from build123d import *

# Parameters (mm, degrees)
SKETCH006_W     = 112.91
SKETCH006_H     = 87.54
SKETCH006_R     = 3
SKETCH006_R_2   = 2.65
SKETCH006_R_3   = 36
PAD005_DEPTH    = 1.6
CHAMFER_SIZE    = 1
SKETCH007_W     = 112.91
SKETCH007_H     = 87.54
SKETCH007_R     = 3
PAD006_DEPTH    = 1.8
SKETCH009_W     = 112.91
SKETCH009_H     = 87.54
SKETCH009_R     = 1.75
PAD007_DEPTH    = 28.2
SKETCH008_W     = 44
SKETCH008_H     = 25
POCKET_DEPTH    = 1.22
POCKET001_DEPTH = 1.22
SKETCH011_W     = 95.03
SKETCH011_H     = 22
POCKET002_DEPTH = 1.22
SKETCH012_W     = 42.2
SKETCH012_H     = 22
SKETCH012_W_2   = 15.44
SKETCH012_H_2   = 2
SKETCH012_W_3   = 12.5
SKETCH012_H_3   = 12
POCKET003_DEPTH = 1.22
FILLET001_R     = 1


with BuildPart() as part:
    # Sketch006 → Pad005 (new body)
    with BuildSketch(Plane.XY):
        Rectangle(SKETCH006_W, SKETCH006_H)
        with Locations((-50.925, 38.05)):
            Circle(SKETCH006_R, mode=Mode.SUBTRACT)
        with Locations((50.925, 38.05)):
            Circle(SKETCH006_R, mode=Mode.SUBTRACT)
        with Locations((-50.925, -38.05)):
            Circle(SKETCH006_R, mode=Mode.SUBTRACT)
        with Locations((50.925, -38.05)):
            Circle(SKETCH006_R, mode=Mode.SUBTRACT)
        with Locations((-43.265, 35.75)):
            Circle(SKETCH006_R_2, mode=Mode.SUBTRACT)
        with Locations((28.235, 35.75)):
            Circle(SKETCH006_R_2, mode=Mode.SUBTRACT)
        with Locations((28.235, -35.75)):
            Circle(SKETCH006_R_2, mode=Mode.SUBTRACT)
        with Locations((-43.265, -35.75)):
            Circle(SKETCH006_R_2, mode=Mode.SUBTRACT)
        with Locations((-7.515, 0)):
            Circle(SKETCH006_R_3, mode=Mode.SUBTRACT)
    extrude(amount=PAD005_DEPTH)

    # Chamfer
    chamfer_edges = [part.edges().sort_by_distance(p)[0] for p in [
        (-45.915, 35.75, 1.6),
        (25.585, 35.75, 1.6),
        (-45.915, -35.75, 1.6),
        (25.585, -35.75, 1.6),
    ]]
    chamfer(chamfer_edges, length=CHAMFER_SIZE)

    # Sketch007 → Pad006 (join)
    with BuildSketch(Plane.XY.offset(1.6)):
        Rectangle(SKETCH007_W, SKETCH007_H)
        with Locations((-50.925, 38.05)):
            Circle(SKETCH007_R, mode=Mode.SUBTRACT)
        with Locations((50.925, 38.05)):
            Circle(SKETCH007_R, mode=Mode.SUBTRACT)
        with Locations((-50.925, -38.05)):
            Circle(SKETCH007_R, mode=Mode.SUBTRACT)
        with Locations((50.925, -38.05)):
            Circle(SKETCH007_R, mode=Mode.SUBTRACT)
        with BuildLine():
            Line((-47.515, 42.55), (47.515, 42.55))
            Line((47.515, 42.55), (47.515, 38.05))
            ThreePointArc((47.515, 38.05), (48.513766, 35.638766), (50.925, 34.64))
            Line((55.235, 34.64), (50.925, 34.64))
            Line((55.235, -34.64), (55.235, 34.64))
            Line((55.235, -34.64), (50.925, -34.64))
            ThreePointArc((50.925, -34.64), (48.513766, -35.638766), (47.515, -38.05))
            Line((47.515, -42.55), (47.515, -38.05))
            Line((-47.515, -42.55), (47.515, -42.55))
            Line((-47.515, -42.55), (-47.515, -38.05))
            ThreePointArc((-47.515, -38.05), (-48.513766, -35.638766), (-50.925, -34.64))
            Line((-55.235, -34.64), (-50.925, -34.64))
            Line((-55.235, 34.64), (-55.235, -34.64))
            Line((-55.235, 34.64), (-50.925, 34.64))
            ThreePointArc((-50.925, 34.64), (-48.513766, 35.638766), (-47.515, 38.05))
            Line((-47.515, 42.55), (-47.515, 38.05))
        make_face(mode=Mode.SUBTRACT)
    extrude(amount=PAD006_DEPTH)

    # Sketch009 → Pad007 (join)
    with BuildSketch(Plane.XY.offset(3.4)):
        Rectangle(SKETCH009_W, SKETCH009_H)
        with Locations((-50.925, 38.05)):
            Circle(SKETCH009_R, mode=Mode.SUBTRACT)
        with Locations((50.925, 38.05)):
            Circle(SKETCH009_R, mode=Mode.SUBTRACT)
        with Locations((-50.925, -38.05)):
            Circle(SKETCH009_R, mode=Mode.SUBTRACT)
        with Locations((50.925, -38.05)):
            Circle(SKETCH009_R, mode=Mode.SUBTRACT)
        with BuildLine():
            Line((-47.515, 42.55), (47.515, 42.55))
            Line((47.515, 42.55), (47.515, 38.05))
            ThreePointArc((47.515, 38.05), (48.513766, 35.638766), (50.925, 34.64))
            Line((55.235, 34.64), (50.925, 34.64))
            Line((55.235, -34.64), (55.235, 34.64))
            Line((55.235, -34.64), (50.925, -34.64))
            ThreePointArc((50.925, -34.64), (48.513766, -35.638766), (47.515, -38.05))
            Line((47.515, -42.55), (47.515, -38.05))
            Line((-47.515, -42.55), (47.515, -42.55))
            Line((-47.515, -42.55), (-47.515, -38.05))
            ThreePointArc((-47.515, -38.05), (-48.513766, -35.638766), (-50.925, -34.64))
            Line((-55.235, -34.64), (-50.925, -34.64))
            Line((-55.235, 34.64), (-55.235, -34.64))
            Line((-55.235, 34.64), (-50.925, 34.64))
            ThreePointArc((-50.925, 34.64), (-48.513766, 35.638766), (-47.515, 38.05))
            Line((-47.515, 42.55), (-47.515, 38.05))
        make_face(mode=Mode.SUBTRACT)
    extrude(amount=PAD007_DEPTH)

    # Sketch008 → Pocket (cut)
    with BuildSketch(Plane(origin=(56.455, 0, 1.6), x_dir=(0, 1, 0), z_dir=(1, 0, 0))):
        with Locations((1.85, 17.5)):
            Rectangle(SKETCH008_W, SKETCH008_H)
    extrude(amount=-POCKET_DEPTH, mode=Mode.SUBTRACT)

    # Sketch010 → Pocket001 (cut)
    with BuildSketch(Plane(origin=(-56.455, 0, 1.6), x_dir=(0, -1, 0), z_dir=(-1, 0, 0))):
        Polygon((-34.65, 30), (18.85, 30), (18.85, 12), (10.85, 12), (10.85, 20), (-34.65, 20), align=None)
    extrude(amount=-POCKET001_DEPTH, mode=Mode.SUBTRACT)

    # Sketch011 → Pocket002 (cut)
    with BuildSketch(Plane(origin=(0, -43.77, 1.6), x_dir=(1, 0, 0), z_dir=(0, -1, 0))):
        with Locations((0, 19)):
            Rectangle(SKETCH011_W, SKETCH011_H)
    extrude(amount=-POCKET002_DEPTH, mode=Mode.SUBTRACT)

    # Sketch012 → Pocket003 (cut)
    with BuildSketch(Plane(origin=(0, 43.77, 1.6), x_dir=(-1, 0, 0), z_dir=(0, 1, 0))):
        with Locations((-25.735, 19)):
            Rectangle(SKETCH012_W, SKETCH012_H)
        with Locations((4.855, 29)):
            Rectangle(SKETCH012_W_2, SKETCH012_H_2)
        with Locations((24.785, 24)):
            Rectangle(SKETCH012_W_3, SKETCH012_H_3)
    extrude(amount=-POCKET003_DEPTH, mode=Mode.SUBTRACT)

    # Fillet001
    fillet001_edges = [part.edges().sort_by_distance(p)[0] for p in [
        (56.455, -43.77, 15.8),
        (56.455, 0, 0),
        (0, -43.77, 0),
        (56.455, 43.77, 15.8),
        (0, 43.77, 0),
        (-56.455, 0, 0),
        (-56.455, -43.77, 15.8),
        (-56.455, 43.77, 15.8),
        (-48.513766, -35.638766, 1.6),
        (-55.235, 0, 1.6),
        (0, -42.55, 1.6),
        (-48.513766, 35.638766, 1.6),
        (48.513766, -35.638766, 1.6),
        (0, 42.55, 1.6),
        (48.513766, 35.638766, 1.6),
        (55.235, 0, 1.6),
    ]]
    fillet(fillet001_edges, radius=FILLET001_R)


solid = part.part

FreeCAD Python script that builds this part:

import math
import FreeCAD as App
import Part
import Sketcher


def edges_at(feature, points):
    """Names of the edges that pass closest to the given points."""
    edges = feature.Shape.Edges
    near = lambda p: min(range(len(edges)), key=lambda i: edges[i].distToShape(Part.Vertex(*p))[0])
    return sorted({f"Edge{near(p) + 1}" for p in points})


def add_polygon(sketch, points):
    """Adds a closed chain of lines whose ends are joined by coincident constraints."""
    first, n = sketch.GeometryCount, len(points)
    for a, b in zip(points, points[1:] + points[:1]):
        sketch.addGeometry(Part.LineSegment(App.Vector(*a, 0), App.Vector(*b, 0)), False)
    for i in range(n):
        sketch.addConstraint(Sketcher.Constraint("Coincident", first + i, 2, first + (i + 1) % n, 1))

doc = App.newDocument("Part")
body = doc.addObject("PartDesign::Body", "Body")

# Sketch on XY plane
sketch1 = body.newObject("Sketcher::SketchObject", "Sketch")
sketch1.AttachmentSupport = (doc.getObject("XY_Plane"), [""])
sketch1.MapMode = "FlatFace"
add_polygon(sketch1, [(-56.5, 43.8), (-56.5, -43.8), (56.5, -43.8), (56.5, 43.8)])  # lines 0-3
sketch1.addGeometry(Part.Circle(App.Vector(-50.9, -38, 0), App.Vector(0, 0, 1), 3), False)  # 4
sketch1.addGeometry(Part.Circle(App.Vector(-43.3, -35.8, 0), App.Vector(0, 0, 1), 2.6), False)  # 5
sketch1.addGeometry(Part.Circle(App.Vector(28.2, -35.8, 0), App.Vector(0, 0, 1), 2.6), False)  # 6
sketch1.addGeometry(Part.Circle(App.Vector(50.9, -38, 0), App.Vector(0, 0, 1), 3), False)  # 7
sketch1.addGeometry(Part.Circle(App.Vector(-7.5, 0, 0), App.Vector(0, 0, 1), 36), False)  # 8
sketch1.addGeometry(Part.Circle(App.Vector(-43.3, 35.8, 0), App.Vector(0, 0, 1), 2.6), False)  # 9
sketch1.addGeometry(Part.Circle(App.Vector(-50.9, 38, 0), App.Vector(0, 0, 1), 3), False)  # 10
sketch1.addGeometry(Part.Circle(App.Vector(28.2, 35.8, 0), App.Vector(0, 0, 1), 2.6), False)  # 11
sketch1.addGeometry(Part.Circle(App.Vector(50.9, 38, 0), App.Vector(0, 0, 1), 3), False)  # 12
sketch1.addConstraint(Sketcher.Constraint("Vertical", 0))
sketch1.addConstraint(Sketcher.Constraint("Horizontal", 1))
sketch1.addConstraint(Sketcher.Constraint("Vertical", 2))
sketch1.addConstraint(Sketcher.Constraint("Horizontal", 3))
sketch1.addConstraint(Sketcher.Constraint("Equal", 5, 6))
sketch1.addConstraint(Sketcher.Constraint("Equal", 4, 7))
sketch1.addConstraint(Sketcher.Constraint("Equal", 6, 9))
sketch1.addConstraint(Sketcher.Constraint("Equal", 7, 10))
sketch1.addConstraint(Sketcher.Constraint("Equal", 9, 11))
sketch1.addConstraint(Sketcher.Constraint("Equal", 10, 12))
sketch1.addConstraint(Sketcher.Constraint("Symmetric", 7, 3, 10, 3, -1, 1))
sketch1.addConstraint(Sketcher.Constraint("Symmetric", 4, 3, 12, 3, -1, 1))
sketch1.addConstraint(Sketcher.Constraint("Symmetric", 0, 2, 2, 2, -1, 1))
sketch1.addConstraint(Sketcher.Constraint("Symmetric", 4, 3, 7, 3, -2))
sketch1.addConstraint(Sketcher.Constraint("Symmetric", 5, 3, 9, 3, -1))
sketch1.addConstraint(Sketcher.Constraint("Symmetric", 6, 3, 11, 3, -1))
sketch1.addConstraint(Sketcher.Constraint("PointOnObject", 8, 3, -1))
sketch1.addConstraint(Sketcher.Constraint("Horizontal", 5, 3, 6, 3))
sketch1.addConstraint(Sketcher.Constraint("Diameter", 4, 6.0))
sketch1.addConstraint(Sketcher.Constraint("Diameter", 8, 72.0))
sketch1.addConstraint(Sketcher.Constraint("Diameter", 5, 5.3))
sketch1.addConstraint(Sketcher.Constraint("DistanceX", 1, 1, 1, 2, 112.91))
sketch1.addConstraint(Sketcher.Constraint("DistanceY", 0, 2, 0, 1, 87.54))
sketch1.addConstraint(Sketcher.Constraint("DistanceY", 4, 3, 5, 3, 2.3))
sketch1.addConstraint(Sketcher.Constraint("DistanceX", 5, 3, 6, 3, 71.5))
sketch1.addConstraint(Sketcher.Constraint("DistanceY", 5, 3, 9, 3, 71.5))
sketch1.addConstraint(Sketcher.Constraint("DistanceX", 4, 3, 5, 3, 7.66))
sketch1.addConstraint(Sketcher.Constraint("DistanceX", 6, 3, 7, 3, 22.69))
sketch1.addConstraint(Sketcher.Constraint("DistanceX", 5, 3, 8, 3, 35.75))
pad1 = body.newObject("PartDesign::Pad", "Pad")
pad1.Profile = sketch1
pad1.Length = 1.6
doc.recompute()

chamfer = body.newObject("PartDesign::Chamfer", "Chamfer")
chamfer.Base = (pad1, edges_at(pad1, [
    (-45.915, 35.75, 1.6),
    (25.585, 35.75, 1.6),
    (-45.915, -35.75, 1.6),
    (25.585, -35.75, 1.6),
]))
chamfer.Size = 1

# Sketch on XY plane
sketch2 = body.newObject("Sketcher::SketchObject", "Sketch001")
sketch2.AttachmentSupport = (doc.getObject("XY_Plane"), [""])
sketch2.MapMode = "FlatFace"
sketch2.AttachmentOffset = App.Placement(App.Vector(0, 0, 1.6), App.Rotation())
add_polygon(sketch2, [(-56.5, 43.8), (-56.5, -43.8), (56.5, -43.8), (56.5, 43.8)])  # lines 0-3
sketch2.addGeometry(Part.Circle(App.Vector(-50.9, -38, 0), App.Vector(0, 0, 1), 3), False)  # 4
sketch2.addGeometry(Part.Circle(App.Vector(50.9, -38, 0), App.Vector(0, 0, 1), 3), False)  # 5
sketch2.addGeometry(Part.LineSegment(App.Vector(-47.5, 38, 0), App.Vector(-47.5, 42.5, 0)), False)  # 6
sketch2.addGeometry(Part.LineSegment(App.Vector(-47.5, 42.5, 0), App.Vector(47.5, 42.5, 0)), False)  # 7
sketch2.addGeometry(Part.LineSegment(App.Vector(47.5, 42.5, 0), App.Vector(47.5, 38, 0)), False)  # 8
sketch2.addGeometry(Part.ArcOfCircle(Part.Circle(App.Vector(50.9, 38.1, 0), App.Vector(0, 0, 1), 3.4), math.radians(-180), math.radians(-90)), False)  # 9
sketch2.addGeometry(Part.LineSegment(App.Vector(50.9, 34.6, 0), App.Vector(55.2, 34.6, 0)), False)  # 10
sketch2.addGeometry(Part.LineSegment(App.Vector(55.2, 34.6, 0), App.Vector(55.2, -34.6, 0)), False)  # 11
sketch2.addGeometry(Part.LineSegment(App.Vector(55.2, -34.6, 0), App.Vector(50.9, -34.6, 0)), False)  # 12
sketch2.addGeometry(Part.ArcOfCircle(Part.Circle(App.Vector(50.9, -38.1, 0), App.Vector(0, 0, 1), 3.4), math.radians(90), math.radians(180)), False)  # 13
sketch2.addGeometry(Part.LineSegment(App.Vector(47.5, -38, 0), App.Vector(47.5, -42.5, 0)), False)  # 14
sketch2.addGeometry(Part.LineSegment(App.Vector(47.5, -42.5, 0), App.Vector(-47.5, -42.5, 0)), False)  # 15
sketch2.addGeometry(Part.LineSegment(App.Vector(-47.5, -42.5, 0), App.Vector(-47.5, -38, 0)), False)  # 16
sketch2.addGeometry(Part.ArcOfCircle(Part.Circle(App.Vector(-50.9, -38.1, 0), App.Vector(0, 0, 1), 3.4), math.radians(0), math.radians(90)), False)  # 17
sketch2.addGeometry(Part.LineSegment(App.Vector(-50.9, -34.6, 0), App.Vector(-55.2, -34.6, 0)), False)  # 18
sketch2.addGeometry(Part.LineSegment(App.Vector(-55.2, -34.6, 0), App.Vector(-55.2, 34.6, 0)), False)  # 19
sketch2.addGeometry(Part.LineSegment(App.Vector(-55.2, 34.6, 0), App.Vector(-50.9, 34.6, 0)), False)  # 20
sketch2.addGeometry(Part.ArcOfCircle(Part.Circle(App.Vector(-50.9, 38.1, 0), App.Vector(0, 0, 1), 3.4), math.radians(-90), math.radians(0)), False)  # 21
sketch2.addGeometry(Part.Circle(App.Vector(-50.9, 38, 0), App.Vector(0, 0, 1), 3), False)  # 22
sketch2.addGeometry(Part.Circle(App.Vector(50.9, 38, 0), App.Vector(0, 0, 1), 3), False)  # 23
sketch2.addConstraint(Sketcher.Constraint("Coincident", 6, 2, 7, 1))
sketch2.addConstraint(Sketcher.Constraint("Coincident", 7, 2, 8, 1))
sketch2.addConstraint(Sketcher.Constraint("Tangent", 8, 2, 9, 1))
sketch2.addConstraint(Sketcher.Constraint("Tangent", 9, 2, 10, 1))
sketch2.addConstraint(Sketcher.Constraint("Coincident", 10, 2, 11, 1))
sketch2.addConstraint(Sketcher.Constraint("Coincident", 11, 2, 12, 1))
sketch2.addConstraint(Sketcher.Constraint("Tangent", 12, 2, 13, 1))
sketch2.addConstraint(Sketcher.Constraint("Tangent", 13, 2, 14, 1))
sketch2.addConstraint(Sketcher.Constraint("Coincident", 14, 2, 15, 1))
sketch2.addConstraint(Sketcher.Constraint("Coincident", 15, 2, 16, 1))
sketch2.addConstraint(Sketcher.Constraint("Tangent", 16, 2, 17, 1))
sketch2.addConstraint(Sketcher.Constraint("Tangent", 17, 2, 18, 1))
sketch2.addConstraint(Sketcher.Constraint("Coincident", 18, 2, 19, 1))
sketch2.addConstraint(Sketcher.Constraint("Coincident", 19, 2, 20, 1))
sketch2.addConstraint(Sketcher.Constraint("Tangent", 20, 2, 21, 1))
sketch2.addConstraint(Sketcher.Constraint("Tangent", 21, 2, 6, 1))
sketch2.addConstraint(Sketcher.Constraint("Vertical", 0))
sketch2.addConstraint(Sketcher.Constraint("Horizontal", 1))
sketch2.addConstraint(Sketcher.Constraint("Vertical", 2))
sketch2.addConstraint(Sketcher.Constraint("Horizontal", 3))
sketch2.addConstraint(Sketcher.Constraint("Vertical", 6))
sketch2.addConstraint(Sketcher.Constraint("Horizontal", 7))
sketch2.addConstraint(Sketcher.Constraint("Vertical", 8))
sketch2.addConstraint(Sketcher.Constraint("Horizontal", 10))
sketch2.addConstraint(Sketcher.Constraint("Vertical", 11))
sketch2.addConstraint(Sketcher.Constraint("Horizontal", 12))
sketch2.addConstraint(Sketcher.Constraint("Vertical", 14))
sketch2.addConstraint(Sketcher.Constraint("Horizontal", 15))
sketch2.addConstraint(Sketcher.Constraint("Vertical", 16))
sketch2.addConstraint(Sketcher.Constraint("Horizontal", 18))
sketch2.addConstraint(Sketcher.Constraint("Vertical", 19))
sketch2.addConstraint(Sketcher.Constraint("Horizontal", 20))
sketch2.addConstraint(Sketcher.Constraint("Coincident", 13, 3, 5, 3))
sketch2.addConstraint(Sketcher.Constraint("Coincident", 17, 3, 4, 3))
sketch2.addConstraint(Sketcher.Constraint("Coincident", 22, 3, 21, 3))
sketch2.addConstraint(Sketcher.Constraint("Coincident", 23, 3, 9, 3))
sketch2.addConstraint(Sketcher.Constraint("Equal", 4, 5))
sketch2.addConstraint(Sketcher.Constraint("Equal", 9, 13))
sketch2.addConstraint(Sketcher.Constraint("Equal", 13, 17))
sketch2.addConstraint(Sketcher.Constraint("Equal", 17, 21))
sketch2.addConstraint(Sketcher.Constraint("Equal", 5, 22))
sketch2.addConstraint(Sketcher.Constraint("Equal", 22, 23))
sketch2.addConstraint(Sketcher.Constraint("Symmetric", 4, 3, 9, 3, -1, 1))
sketch2.addConstraint(Sketcher.Constraint("Symmetric", 5, 3, 21, 3, -1, 1))
sketch2.addConstraint(Sketcher.Constraint("Symmetric", 0, 2, 2, 2, -1, 1))
sketch2.addConstraint(Sketcher.Constraint("Symmetric", 4, 3, 5, 3, -2))
sketch2.addConstraint(Sketcher.Constraint("Equal", 12, 18))
sketch2.addConstraint(Sketcher.Constraint("Equal", 8, 14))
sketch2.addConstraint(Sketcher.Constraint("Diameter", 4, 6.0))
sketch2.addConstraint(Sketcher.Constraint("Radius", 9, 3.41))
sketch2.addConstraint(Sketcher.Constraint("DistanceY", 6, 1, 6, 2, 4.5))
sketch2.addConstraint(Sketcher.Constraint("DistanceX", 1, 1, 1, 2, 112.91))
sketch2.addConstraint(Sketcher.Constraint("DistanceX", 7, 1, 7, 2, 95.03))
sketch2.addConstraint(Sketcher.Constraint("DistanceX", 10, 1, 10, 2, 4.31))
sketch2.addConstraint(Sketcher.Constraint("DistanceY", 0, 2, 0, 1, 87.54))
sketch2.addConstraint(Sketcher.Constraint("DistanceY", 11, 2, 11, 1, 69.28))
pad2 = body.newObject("PartDesign::Pad", "Pad001")
pad2.Profile = sketch2
pad2.Length = 1.8

# Sketch on XY plane
sketch3 = body.newObject("Sketcher::SketchObject", "Sketch002")
sketch3.AttachmentSupport = (doc.getObject("XY_Plane"), [""])
sketch3.MapMode = "FlatFace"
sketch3.AttachmentOffset = App.Placement(App.Vector(0, 0, 3.4), App.Rotation())
add_polygon(sketch3, [(-56.5, 43.8), (-56.5, -43.8), (56.5, -43.8), (56.5, 43.8)])  # lines 0-3
sketch3.addGeometry(Part.Circle(App.Vector(-50.9, -38, 0), App.Vector(0, 0, 1), 1.8), False)  # 4
sketch3.addGeometry(Part.Circle(App.Vector(50.9, -38, 0), App.Vector(0, 0, 1), 1.8), False)  # 5
sketch3.addGeometry(Part.LineSegment(App.Vector(-47.5, 38, 0), App.Vector(-47.5, 42.5, 0)), False)  # 6
sketch3.addGeometry(Part.LineSegment(App.Vector(-47.5, 42.5, 0), App.Vector(47.5, 42.5, 0)), False)  # 7
sketch3.addGeometry(Part.LineSegment(App.Vector(47.5, 42.5, 0), App.Vector(47.5, 38, 0)), False)  # 8
sketch3.addGeometry(Part.ArcOfCircle(Part.Circle(App.Vector(50.9, 38.1, 0), App.Vector(0, 0, 1), 3.4), math.radians(-180), math.radians(-90)), False)  # 9
sketch3.addGeometry(Part.LineSegment(App.Vector(50.9, 34.6, 0), App.Vector(55.2, 34.6, 0)), False)  # 10
sketch3.addGeometry(Part.LineSegment(App.Vector(55.2, 34.6, 0), App.Vector(55.2, -34.6, 0)), False)  # 11
sketch3.addGeometry(Part.LineSegment(App.Vector(55.2, -34.6, 0), App.Vector(50.9, -34.6, 0)), False)  # 12
sketch3.addGeometry(Part.ArcOfCircle(Part.Circle(App.Vector(50.9, -38.1, 0), App.Vector(0, 0, 1), 3.4), math.radians(90), math.radians(180)), False)  # 13
sketch3.addGeometry(Part.LineSegment(App.Vector(47.5, -38, 0), App.Vector(47.5, -42.5, 0)), False)  # 14
sketch3.addGeometry(Part.LineSegment(App.Vector(47.5, -42.5, 0), App.Vector(-47.5, -42.5, 0)), False)  # 15
sketch3.addGeometry(Part.LineSegment(App.Vector(-47.5, -42.5, 0), App.Vector(-47.5, -38, 0)), False)  # 16
sketch3.addGeometry(Part.ArcOfCircle(Part.Circle(App.Vector(-50.9, -38.1, 0), App.Vector(0, 0, 1), 3.4), math.radians(0), math.radians(90)), False)  # 17
sketch3.addGeometry(Part.LineSegment(App.Vector(-50.9, -34.6, 0), App.Vector(-55.2, -34.6, 0)), False)  # 18
sketch3.addGeometry(Part.LineSegment(App.Vector(-55.2, -34.6, 0), App.Vector(-55.2, 34.6, 0)), False)  # 19
sketch3.addGeometry(Part.LineSegment(App.Vector(-55.2, 34.6, 0), App.Vector(-50.9, 34.6, 0)), False)  # 20
sketch3.addGeometry(Part.ArcOfCircle(Part.Circle(App.Vector(-50.9, 38.1, 0), App.Vector(0, 0, 1), 3.4), math.radians(-90), math.radians(0)), False)  # 21
sketch3.addGeometry(Part.Circle(App.Vector(-50.9, 38, 0), App.Vector(0, 0, 1), 1.8), False)  # 22
sketch3.addGeometry(Part.Circle(App.Vector(50.9, 38, 0), App.Vector(0, 0, 1), 1.8), False)  # 23
sketch3.addConstraint(Sketcher.Constraint("Coincident", 6, 2, 7, 1))
sketch3.addConstraint(Sketcher.Constraint("Coincident", 7, 2, 8, 1))
sketch3.addConstraint(Sketcher.Constraint("Tangent", 8, 2, 9, 1))
sketch3.addConstraint(Sketcher.Constraint("Tangent", 9, 2, 10, 1))
sketch3.addConstraint(Sketcher.Constraint("Coincident", 10, 2, 11, 1))
sketch3.addConstraint(Sketcher.Constraint("Coincident", 11, 2, 12, 1))
sketch3.addConstraint(Sketcher.Constraint("Tangent", 12, 2, 13, 1))
sketch3.addConstraint(Sketcher.Constraint("Tangent", 13, 2, 14, 1))
sketch3.addConstraint(Sketcher.Constraint("Coincident", 14, 2, 15, 1))
sketch3.addConstraint(Sketcher.Constraint("Coincident", 15, 2, 16, 1))
sketch3.addConstraint(Sketcher.Constraint("Tangent", 16, 2, 17, 1))
sketch3.addConstraint(Sketcher.Constraint("Tangent", 17, 2, 18, 1))
sketch3.addConstraint(Sketcher.Constraint("Coincident", 18, 2, 19, 1))
sketch3.addConstraint(Sketcher.Constraint("Coincident", 19, 2, 20, 1))
sketch3.addConstraint(Sketcher.Constraint("Tangent", 20, 2, 21, 1))
sketch3.addConstraint(Sketcher.Constraint("Tangent", 21, 2, 6, 1))
sketch3.addConstraint(Sketcher.Constraint("Vertical", 0))
sketch3.addConstraint(Sketcher.Constraint("Horizontal", 1))
sketch3.addConstraint(Sketcher.Constraint("Vertical", 2))
sketch3.addConstraint(Sketcher.Constraint("Horizontal", 3))
sketch3.addConstraint(Sketcher.Constraint("Vertical", 6))
sketch3.addConstraint(Sketcher.Constraint("Horizontal", 7))
sketch3.addConstraint(Sketcher.Constraint("Vertical", 8))
sketch3.addConstraint(Sketcher.Constraint("Horizontal", 10))
sketch3.addConstraint(Sketcher.Constraint("Vertical", 11))
sketch3.addConstraint(Sketcher.Constraint("Horizontal", 12))
sketch3.addConstraint(Sketcher.Constraint("Vertical", 14))
sketch3.addConstraint(Sketcher.Constraint("Horizontal", 15))
sketch3.addConstraint(Sketcher.Constraint("Vertical", 16))
sketch3.addConstraint(Sketcher.Constraint("Horizontal", 18))
sketch3.addConstraint(Sketcher.Constraint("Vertical", 19))
sketch3.addConstraint(Sketcher.Constraint("Horizontal", 20))
sketch3.addConstraint(Sketcher.Constraint("Coincident", 13, 3, 5, 3))
sketch3.addConstraint(Sketcher.Constraint("Coincident", 17, 3, 4, 3))
sketch3.addConstraint(Sketcher.Constraint("Coincident", 22, 3, 21, 3))
sketch3.addConstraint(Sketcher.Constraint("Coincident", 23, 3, 9, 3))
sketch3.addConstraint(Sketcher.Constraint("Equal", 4, 5))
sketch3.addConstraint(Sketcher.Constraint("Equal", 9, 13))
sketch3.addConstraint(Sketcher.Constraint("Equal", 13, 17))
sketch3.addConstraint(Sketcher.Constraint("Equal", 17, 21))
sketch3.addConstraint(Sketcher.Constraint("Equal", 5, 22))
sketch3.addConstraint(Sketcher.Constraint("Equal", 22, 23))
sketch3.addConstraint(Sketcher.Constraint("Symmetric", 4, 3, 9, 3, -1, 1))
sketch3.addConstraint(Sketcher.Constraint("Symmetric", 5, 3, 21, 3, -1, 1))
sketch3.addConstraint(Sketcher.Constraint("Symmetric", 0, 2, 2, 2, -1, 1))
sketch3.addConstraint(Sketcher.Constraint("Symmetric", 4, 3, 5, 3, -2))
sketch3.addConstraint(Sketcher.Constraint("Equal", 12, 18))
sketch3.addConstraint(Sketcher.Constraint("Equal", 8, 14))
sketch3.addConstraint(Sketcher.Constraint("Diameter", 4, 3.5))
sketch3.addConstraint(Sketcher.Constraint("Radius", 9, 3.41))
sketch3.addConstraint(Sketcher.Constraint("DistanceY", 6, 1, 6, 2, 4.5))
sketch3.addConstraint(Sketcher.Constraint("DistanceX", 1, 1, 1, 2, 112.91))
sketch3.addConstraint(Sketcher.Constraint("DistanceX", 7, 1, 7, 2, 95.03))
sketch3.addConstraint(Sketcher.Constraint("DistanceX", 10, 1, 10, 2, 4.31))
sketch3.addConstraint(Sketcher.Constraint("DistanceY", 0, 2, 0, 1, 87.54))
sketch3.addConstraint(Sketcher.Constraint("DistanceY", 11, 2, 11, 1, 69.28))
pad3 = body.newObject("PartDesign::Pad", "Pad002")
pad3.Profile = sketch3
pad3.Length = 28.2

# Sketch on YZ plane
sketch4 = body.newObject("Sketcher::SketchObject", "Sketch003")
sketch4.AttachmentSupport = (doc.getObject("YZ_Plane"), [""])
sketch4.MapMode = "FlatFace"
sketch4.AttachmentOffset = App.Placement(App.Vector(0, 0, 56.455), App.Rotation())
add_polygon(sketch4, [(-20, 32), (-20, 7), (24, 7), (24, 32)])  # lines 0-3
sketch4.addConstraint(Sketcher.Constraint("Vertical", 0))
sketch4.addConstraint(Sketcher.Constraint("Horizontal", 1))
sketch4.addConstraint(Sketcher.Constraint("Vertical", 2))
sketch4.addConstraint(Sketcher.Constraint("Horizontal", 3))
sketch4.addConstraint(Sketcher.Constraint("DistanceX", 1, 1, 1, 2, 44.0))
sketch4.addConstraint(Sketcher.Constraint("DistanceY", 0, 2, 0, 1, 25.0))
sketch4.addConstraint(Sketcher.Constraint("DistanceY", -1, 1, 0, 2, 6.6))
sketch4.addConstraint(Sketcher.Constraint("DistanceX", 0, 2, -1, 1, 20.15))
pocket1 = body.newObject("PartDesign::Pocket", "Pocket")
pocket1.Profile = sketch4
pocket1.Length = 1.22

# Sketch on YZ plane
sketch5 = body.newObject("Sketcher::SketchObject", "Sketch004")
sketch5.AttachmentSupport = (doc.getObject("YZ_Plane"), [""])
sketch5.MapMode = "FlatFace"
sketch5.AttachmentOffset = App.Placement(App.Vector(0, 0, -56.455), App.Rotation())
add_polygon(sketch5, [(-19, 32), (35, 32), (35, 22), (-11, 22), (-11, 14), (-19, 14)])  # lines 0-5
sketch5.addConstraint(Sketcher.Constraint("Horizontal", 0))
sketch5.addConstraint(Sketcher.Constraint("Vertical", 1))
sketch5.addConstraint(Sketcher.Constraint("Horizontal", 2))
sketch5.addConstraint(Sketcher.Constraint("Vertical", 3))
sketch5.addConstraint(Sketcher.Constraint("Horizontal", 4))
sketch5.addConstraint(Sketcher.Constraint("Vertical", 5))
sketch5.addConstraint(Sketcher.Constraint("Equal", 4, 3))
sketch5.addConstraint(Sketcher.Constraint("DistanceX", 4, 2, 4, 1, 8.0))
sketch5.addConstraint(Sketcher.Constraint("DistanceY", 1, 2, 1, 1, 10.0))
sketch5.addConstraint(Sketcher.Constraint("DistanceX", 0, 1, 0, 2, 53.5))
sketch5.addConstraint(Sketcher.Constraint("DistanceY", -1, 1, 0, 2, 31.6))
sketch5.addConstraint(Sketcher.Constraint("DistanceX", -1, 1, 0, 2, 34.65))
pocket2 = body.newObject("PartDesign::Pocket", "Pocket001")
pocket2.Profile = sketch5
pocket2.Length = 1.22
pocket2.Reversed = True

# Sketch on XZ plane
sketch6 = body.newObject("Sketcher::SketchObject", "Sketch005")
sketch6.AttachmentSupport = (doc.getObject("XZ_Plane"), [""])
sketch6.MapMode = "FlatFace"
sketch6.AttachmentOffset = App.Placement(App.Vector(0, 0, 43.77), App.Rotation())
add_polygon(sketch6, [(-48, 32), (-48, 10), (48, 10), (48, 32)])  # lines 0-3
sketch6.addConstraint(Sketcher.Constraint("Vertical", 0))
sketch6.addConstraint(Sketcher.Constraint("Horizontal", 1))
sketch6.addConstraint(Sketcher.Constraint("Vertical", 2))
sketch6.addConstraint(Sketcher.Constraint("Horizontal", 3))
sketch6.addConstraint(Sketcher.Constraint("DistanceY", 0, 2, 0, 1, 22.0))
sketch6.addConstraint(Sketcher.Constraint("DistanceX", 1, 1, 1, 2, 95.03))
sketch6.addConstraint(Sketcher.Constraint("DistanceY", -1, 1, 0, 2, 9.6))
sketch6.addConstraint(Sketcher.Constraint("DistanceX", 0, 2, -1, 1, 47.515))
pocket3 = body.newObject("PartDesign::Pocket", "Pocket002")
pocket3.Profile = sketch6
pocket3.Length = 1.22

# Sketch on XZ plane
sketch7 = body.newObject("Sketcher::SketchObject", "Sketch006")
sketch7.AttachmentSupport = (doc.getObject("XZ_Plane"), [""])
sketch7.MapMode = "FlatFace"
sketch7.AttachmentOffset = App.Placement(App.Vector(0, 0, -43.77), App.Rotation())
add_polygon(sketch7, [(46.8, 31.6), (46.8, 9.6), (4.6, 9.6), (4.6, 31.6)])  # lines 0-3
add_polygon(sketch7, [(2.9, 31.6), (2.9, 29.6), (-12.6, 29.6), (-12.6, 31.6)])  # lines 4-7
add_polygon(sketch7, [(-18.5, 31.6), (-18.5, 19.6), (-31, 19.6), (-31, 31.6)])  # lines 8-11
sketch7.addConstraint(Sketcher.Constraint("Vertical", 0))
sketch7.addConstraint(Sketcher.Constraint("Horizontal", 1))
sketch7.addConstraint(Sketcher.Constraint("Vertical", 2))
sketch7.addConstraint(Sketcher.Constraint("Horizontal", 3))
sketch7.addConstraint(Sketcher.Constraint("Vertical", 4))
sketch7.addConstraint(Sketcher.Constraint("Horizontal", 5))
sketch7.addConstraint(Sketcher.Constraint("Vertical", 6))
sketch7.addConstraint(Sketcher.Constraint("Horizontal", 7))
sketch7.addConstraint(Sketcher.Constraint("Vertical", 8))
sketch7.addConstraint(Sketcher.Constraint("Horizontal", 9))
sketch7.addConstraint(Sketcher.Constraint("Vertical", 10))
sketch7.addConstraint(Sketcher.Constraint("Horizontal", 11))
sketch7.addConstraint(Sketcher.Constraint("Horizontal", 3, 2, 6, 2))
sketch7.addConstraint(Sketcher.Constraint("Horizontal", 7, 2, 10, 2))
sketch7.addConstraint(Sketcher.Constraint("DistanceY", 0, 2, 0, 1, 22.0))
sketch7.addConstraint(Sketcher.Constraint("DistanceY", 4, 2, 4, 1, 2.0))
sketch7.addConstraint(Sketcher.Constraint("DistanceY", 8, 2, 8, 1, 12.0))
sketch7.addConstraint(Sketcher.Constraint("DistanceX", 1, 2, 1, 1, 42.2))
sketch7.addConstraint(Sketcher.Constraint("DistanceX", 9, 2, 9, 1, 12.5))
sketch7.addConstraint(Sketcher.Constraint("DistanceX", 5, 2, 5, 1, 15.44))
sketch7.addConstraint(Sketcher.Constraint("DistanceY", -1, 1, 0, 2, 9.6))
sketch7.addConstraint(Sketcher.Constraint("DistanceX", 8, 2, 4, 2, 21.4))
sketch7.addConstraint(Sketcher.Constraint("DistanceX", 4, 2, 2, 2, 1.77))
sketch7.addConstraint(Sketcher.Constraint("DistanceX", -1, 1, 0, 2, 46.835))
pocket4 = body.newObject("PartDesign::Pocket", "Pocket003")
pocket4.Profile = sketch7
pocket4.Length = 1.22
pocket4.Reversed = True
doc.recompute()

fillet = body.newObject("PartDesign::Fillet", "Fillet")
fillet.Base = (pocket4, edges_at(pocket4, [
    (56.455, -43.77, 15.8),
    (56.455, 0, 0),
    (0, -43.77, 0),
    (56.455, 43.77, 15.8),
    (0, 43.77, 0),
    (-56.455, 0, 0),
    (-56.455, -43.77, 15.8),
    (-56.455, 43.77, 15.8),
    (-48.514, -35.639, 1.6),
    (-55.235, 0, 1.6),
    (0, -42.55, 1.6),
    (-48.514, 35.639, 1.6),
    (48.514, -35.639, 1.6),
    (0, 42.55, 1.6),
    (48.514, 35.639, 1.6),
    (55.235, 0, 1.6),
]))
fillet.Radius = 1

doc.recompute()
